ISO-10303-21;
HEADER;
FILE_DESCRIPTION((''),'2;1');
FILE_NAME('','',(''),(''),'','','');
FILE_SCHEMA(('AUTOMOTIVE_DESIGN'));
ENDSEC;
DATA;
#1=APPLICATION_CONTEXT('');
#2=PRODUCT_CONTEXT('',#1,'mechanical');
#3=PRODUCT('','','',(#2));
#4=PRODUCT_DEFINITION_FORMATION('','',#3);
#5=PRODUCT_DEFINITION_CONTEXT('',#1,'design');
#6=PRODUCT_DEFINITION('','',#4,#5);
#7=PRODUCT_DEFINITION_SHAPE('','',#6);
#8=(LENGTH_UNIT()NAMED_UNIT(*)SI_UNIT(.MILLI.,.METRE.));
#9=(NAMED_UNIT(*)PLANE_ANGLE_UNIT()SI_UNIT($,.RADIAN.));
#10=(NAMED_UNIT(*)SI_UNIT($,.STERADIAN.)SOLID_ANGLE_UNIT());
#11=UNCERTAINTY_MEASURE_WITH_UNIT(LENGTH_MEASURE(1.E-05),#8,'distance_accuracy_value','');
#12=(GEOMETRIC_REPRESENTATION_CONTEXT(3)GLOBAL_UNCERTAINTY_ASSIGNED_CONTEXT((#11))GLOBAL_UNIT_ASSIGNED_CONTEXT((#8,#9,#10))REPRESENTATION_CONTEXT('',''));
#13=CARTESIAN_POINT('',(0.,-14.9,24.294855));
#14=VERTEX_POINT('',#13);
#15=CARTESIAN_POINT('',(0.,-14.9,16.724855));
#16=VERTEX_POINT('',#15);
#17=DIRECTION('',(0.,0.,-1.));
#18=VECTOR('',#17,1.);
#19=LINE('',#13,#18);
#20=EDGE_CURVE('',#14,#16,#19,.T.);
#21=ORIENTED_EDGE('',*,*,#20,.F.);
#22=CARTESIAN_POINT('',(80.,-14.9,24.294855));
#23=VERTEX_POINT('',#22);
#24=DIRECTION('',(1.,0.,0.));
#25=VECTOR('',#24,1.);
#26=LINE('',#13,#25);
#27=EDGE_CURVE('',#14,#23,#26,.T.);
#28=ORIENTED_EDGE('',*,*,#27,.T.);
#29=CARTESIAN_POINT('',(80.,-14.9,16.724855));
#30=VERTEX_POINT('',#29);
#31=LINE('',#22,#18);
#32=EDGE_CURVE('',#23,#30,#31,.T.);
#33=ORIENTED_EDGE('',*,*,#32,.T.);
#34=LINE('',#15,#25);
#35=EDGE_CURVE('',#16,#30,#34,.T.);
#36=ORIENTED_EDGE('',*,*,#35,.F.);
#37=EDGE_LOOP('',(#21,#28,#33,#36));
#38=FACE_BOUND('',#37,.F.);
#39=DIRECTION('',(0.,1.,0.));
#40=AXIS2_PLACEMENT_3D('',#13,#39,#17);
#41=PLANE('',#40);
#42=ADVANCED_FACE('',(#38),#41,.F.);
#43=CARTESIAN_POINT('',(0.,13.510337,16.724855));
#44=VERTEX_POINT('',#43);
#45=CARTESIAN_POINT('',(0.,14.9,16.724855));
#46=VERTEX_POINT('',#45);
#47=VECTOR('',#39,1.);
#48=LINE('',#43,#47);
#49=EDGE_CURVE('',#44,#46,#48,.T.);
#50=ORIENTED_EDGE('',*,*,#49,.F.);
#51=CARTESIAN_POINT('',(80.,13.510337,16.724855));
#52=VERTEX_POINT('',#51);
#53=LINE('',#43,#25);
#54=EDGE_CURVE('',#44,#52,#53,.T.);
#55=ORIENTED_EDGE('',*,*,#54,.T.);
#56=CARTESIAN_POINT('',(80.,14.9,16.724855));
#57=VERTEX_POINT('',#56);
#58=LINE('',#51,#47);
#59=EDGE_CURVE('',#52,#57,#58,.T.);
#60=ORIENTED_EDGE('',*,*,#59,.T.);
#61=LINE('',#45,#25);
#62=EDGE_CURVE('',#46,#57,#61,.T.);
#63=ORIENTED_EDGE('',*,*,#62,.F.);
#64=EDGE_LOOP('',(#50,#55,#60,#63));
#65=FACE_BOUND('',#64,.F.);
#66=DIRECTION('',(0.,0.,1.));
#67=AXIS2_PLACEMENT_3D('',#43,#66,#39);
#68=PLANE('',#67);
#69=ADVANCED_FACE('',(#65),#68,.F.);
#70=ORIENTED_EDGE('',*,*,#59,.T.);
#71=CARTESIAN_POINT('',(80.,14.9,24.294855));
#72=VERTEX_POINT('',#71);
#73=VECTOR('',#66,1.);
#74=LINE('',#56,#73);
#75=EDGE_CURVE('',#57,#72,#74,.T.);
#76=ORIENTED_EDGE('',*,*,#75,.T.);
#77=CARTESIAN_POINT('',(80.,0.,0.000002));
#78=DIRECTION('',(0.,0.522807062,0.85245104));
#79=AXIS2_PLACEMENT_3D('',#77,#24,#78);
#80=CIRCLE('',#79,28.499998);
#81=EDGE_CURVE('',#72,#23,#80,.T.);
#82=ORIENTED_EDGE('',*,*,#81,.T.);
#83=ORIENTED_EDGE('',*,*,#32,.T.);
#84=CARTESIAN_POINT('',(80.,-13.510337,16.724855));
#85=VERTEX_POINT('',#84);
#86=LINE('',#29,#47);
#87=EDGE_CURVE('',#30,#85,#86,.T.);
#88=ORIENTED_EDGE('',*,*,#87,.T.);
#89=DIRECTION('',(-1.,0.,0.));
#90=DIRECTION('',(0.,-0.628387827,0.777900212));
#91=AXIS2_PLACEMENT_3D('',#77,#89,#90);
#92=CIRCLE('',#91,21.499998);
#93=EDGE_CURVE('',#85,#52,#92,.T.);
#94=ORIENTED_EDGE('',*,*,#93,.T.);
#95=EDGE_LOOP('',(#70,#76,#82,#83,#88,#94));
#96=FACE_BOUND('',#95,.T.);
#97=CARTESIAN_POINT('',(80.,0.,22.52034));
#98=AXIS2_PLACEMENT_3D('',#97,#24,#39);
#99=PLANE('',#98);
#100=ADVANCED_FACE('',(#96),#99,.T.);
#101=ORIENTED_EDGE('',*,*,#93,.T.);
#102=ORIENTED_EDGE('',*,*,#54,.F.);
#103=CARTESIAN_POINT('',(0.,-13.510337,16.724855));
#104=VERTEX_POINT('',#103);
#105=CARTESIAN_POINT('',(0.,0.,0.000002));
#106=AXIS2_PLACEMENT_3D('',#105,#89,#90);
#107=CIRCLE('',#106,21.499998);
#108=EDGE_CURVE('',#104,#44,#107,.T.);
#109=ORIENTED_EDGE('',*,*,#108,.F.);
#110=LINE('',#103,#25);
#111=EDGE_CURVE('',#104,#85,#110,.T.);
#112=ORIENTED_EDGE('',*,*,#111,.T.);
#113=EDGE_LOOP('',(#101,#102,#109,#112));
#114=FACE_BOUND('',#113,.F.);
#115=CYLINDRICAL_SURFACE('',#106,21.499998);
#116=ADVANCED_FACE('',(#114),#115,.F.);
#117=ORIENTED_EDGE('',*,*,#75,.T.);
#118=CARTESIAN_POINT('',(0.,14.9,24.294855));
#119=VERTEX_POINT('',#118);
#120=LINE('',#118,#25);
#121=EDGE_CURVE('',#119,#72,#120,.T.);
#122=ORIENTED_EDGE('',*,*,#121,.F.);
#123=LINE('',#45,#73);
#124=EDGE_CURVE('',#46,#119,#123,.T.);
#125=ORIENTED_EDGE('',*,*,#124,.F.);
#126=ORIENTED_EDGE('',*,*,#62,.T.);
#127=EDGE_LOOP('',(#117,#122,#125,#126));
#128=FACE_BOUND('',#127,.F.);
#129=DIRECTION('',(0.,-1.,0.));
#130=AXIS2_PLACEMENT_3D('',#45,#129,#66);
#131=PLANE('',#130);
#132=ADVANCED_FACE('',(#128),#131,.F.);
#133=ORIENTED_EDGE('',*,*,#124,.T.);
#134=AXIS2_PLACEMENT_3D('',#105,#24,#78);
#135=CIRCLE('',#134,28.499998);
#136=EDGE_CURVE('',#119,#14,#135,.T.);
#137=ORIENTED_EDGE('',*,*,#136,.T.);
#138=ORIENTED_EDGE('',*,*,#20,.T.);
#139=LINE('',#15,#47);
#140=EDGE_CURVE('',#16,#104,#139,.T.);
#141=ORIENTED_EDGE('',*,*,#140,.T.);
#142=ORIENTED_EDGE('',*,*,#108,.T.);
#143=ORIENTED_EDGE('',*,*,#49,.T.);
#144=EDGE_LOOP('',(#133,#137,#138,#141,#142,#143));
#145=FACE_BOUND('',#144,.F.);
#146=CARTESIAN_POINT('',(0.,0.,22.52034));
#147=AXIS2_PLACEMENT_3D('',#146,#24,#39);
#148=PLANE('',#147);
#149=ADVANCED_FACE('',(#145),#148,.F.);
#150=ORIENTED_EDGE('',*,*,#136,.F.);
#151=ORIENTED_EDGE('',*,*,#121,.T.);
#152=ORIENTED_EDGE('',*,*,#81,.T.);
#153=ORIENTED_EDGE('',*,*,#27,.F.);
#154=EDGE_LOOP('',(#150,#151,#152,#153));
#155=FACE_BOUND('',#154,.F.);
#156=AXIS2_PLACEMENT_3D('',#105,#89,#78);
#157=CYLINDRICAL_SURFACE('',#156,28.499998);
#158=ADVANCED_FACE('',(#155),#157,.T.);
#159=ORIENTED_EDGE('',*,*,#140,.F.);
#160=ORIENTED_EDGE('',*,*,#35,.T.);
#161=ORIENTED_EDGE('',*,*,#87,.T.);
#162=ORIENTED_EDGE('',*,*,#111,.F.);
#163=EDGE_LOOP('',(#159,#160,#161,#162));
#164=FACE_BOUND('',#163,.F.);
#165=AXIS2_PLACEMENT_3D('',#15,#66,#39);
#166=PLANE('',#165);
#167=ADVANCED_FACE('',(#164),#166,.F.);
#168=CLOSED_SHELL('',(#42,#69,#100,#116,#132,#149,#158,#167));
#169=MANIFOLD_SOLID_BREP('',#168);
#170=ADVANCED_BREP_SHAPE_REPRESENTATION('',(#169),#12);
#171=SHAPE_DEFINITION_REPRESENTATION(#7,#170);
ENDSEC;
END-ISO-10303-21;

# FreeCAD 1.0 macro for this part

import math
import FreeCAD as App
import Part
import Sketcher
from FreeCAD import Vector

doc = App.newDocument("Part")
body = doc.addObject("PartDesign::Body", "Body")

# Sketch on YZ plane
sketch1 = body.newObject("Sketcher::SketchObject", "Sketch")
sketch1.AttachmentSupport = (doc.getObject("YZ_Plane"), [""])
sketch1.MapMode = "FlatFace"
sketch1.addGeometry([
    Part.LineSegment(Vector(14.9, 16.724855, 0), Vector(14.9, 24.294855, 0)),  # 0
    Part.ArcOfCircle(Part.Circle(Vector(0, 0.000002, 0), Vector(0, 0, 1), 28.499998), math.radians(58.479267), math.radians(121.520733)),  # 1
    Part.LineSegment(Vector(-14.9, 24.294855, 0), Vector(-14.9, 16.724855, 0)),  # 2
    Part.LineSegment(Vector(-14.9, 16.724855, 0), Vector(-13.510337, 16.724855, 0)),  # 3
    Part.ArcOfCircle(Part.Circle(Vector(0, 0.000002, 0), Vector(0, 0, 1), 21.499998), math.radians(51.068721), math.radians(128.931279)),  # 4
    Part.LineSegment(Vector(13.510337, 16.724855, 0), Vector(14.9, 16.724855, 0)),  # 5
], False)
sketch1.addConstraint([
    Sketcher.Constraint("Coincident", 0, 2, 1, 1),
    Sketcher.Constraint("Coincident", 1, 2, 2, 1),
    Sketcher.Constraint("Coincident", 2, 2, 3, 1),
    Sketcher.Constraint("Coincident", 3, 2, 4, 2),
    Sketcher.Constraint("Coincident", 4, 1, 5, 1),
    Sketcher.Constraint("Coincident", 5, 2, 0, 1),
    Sketcher.Constraint("Vertical", 0),
    Sketcher.Constraint("Vertical", 2),
    Sketcher.Constraint("Horizontal", 3),
    Sketcher.Constraint("Horizontal", 5),
    Sketcher.Constraint("Coincident", 1, 3, -1, 1),
    Sketcher.Constraint("Coincident", 4, 3, -1, 1),
    Sketcher.Constraint("Symmetric", 2, 2, 5, 2, -2),
    Sketcher.Constraint("DistanceY", 0, 1, 0, 2, 7.57),
    Sketcher.Constraint("DistanceX", -1, 1, 0, 2, 14.9),
    Sketcher.Constraint("Radius", 1, 28.499998),
    Sketcher.Constraint("Radius", 4, 21.499998),
])
pad1 = body.newObject("PartDesign::Pad", "Pad")
pad1.Profile = sketch1
pad1.Length = 80

doc.recompute()
